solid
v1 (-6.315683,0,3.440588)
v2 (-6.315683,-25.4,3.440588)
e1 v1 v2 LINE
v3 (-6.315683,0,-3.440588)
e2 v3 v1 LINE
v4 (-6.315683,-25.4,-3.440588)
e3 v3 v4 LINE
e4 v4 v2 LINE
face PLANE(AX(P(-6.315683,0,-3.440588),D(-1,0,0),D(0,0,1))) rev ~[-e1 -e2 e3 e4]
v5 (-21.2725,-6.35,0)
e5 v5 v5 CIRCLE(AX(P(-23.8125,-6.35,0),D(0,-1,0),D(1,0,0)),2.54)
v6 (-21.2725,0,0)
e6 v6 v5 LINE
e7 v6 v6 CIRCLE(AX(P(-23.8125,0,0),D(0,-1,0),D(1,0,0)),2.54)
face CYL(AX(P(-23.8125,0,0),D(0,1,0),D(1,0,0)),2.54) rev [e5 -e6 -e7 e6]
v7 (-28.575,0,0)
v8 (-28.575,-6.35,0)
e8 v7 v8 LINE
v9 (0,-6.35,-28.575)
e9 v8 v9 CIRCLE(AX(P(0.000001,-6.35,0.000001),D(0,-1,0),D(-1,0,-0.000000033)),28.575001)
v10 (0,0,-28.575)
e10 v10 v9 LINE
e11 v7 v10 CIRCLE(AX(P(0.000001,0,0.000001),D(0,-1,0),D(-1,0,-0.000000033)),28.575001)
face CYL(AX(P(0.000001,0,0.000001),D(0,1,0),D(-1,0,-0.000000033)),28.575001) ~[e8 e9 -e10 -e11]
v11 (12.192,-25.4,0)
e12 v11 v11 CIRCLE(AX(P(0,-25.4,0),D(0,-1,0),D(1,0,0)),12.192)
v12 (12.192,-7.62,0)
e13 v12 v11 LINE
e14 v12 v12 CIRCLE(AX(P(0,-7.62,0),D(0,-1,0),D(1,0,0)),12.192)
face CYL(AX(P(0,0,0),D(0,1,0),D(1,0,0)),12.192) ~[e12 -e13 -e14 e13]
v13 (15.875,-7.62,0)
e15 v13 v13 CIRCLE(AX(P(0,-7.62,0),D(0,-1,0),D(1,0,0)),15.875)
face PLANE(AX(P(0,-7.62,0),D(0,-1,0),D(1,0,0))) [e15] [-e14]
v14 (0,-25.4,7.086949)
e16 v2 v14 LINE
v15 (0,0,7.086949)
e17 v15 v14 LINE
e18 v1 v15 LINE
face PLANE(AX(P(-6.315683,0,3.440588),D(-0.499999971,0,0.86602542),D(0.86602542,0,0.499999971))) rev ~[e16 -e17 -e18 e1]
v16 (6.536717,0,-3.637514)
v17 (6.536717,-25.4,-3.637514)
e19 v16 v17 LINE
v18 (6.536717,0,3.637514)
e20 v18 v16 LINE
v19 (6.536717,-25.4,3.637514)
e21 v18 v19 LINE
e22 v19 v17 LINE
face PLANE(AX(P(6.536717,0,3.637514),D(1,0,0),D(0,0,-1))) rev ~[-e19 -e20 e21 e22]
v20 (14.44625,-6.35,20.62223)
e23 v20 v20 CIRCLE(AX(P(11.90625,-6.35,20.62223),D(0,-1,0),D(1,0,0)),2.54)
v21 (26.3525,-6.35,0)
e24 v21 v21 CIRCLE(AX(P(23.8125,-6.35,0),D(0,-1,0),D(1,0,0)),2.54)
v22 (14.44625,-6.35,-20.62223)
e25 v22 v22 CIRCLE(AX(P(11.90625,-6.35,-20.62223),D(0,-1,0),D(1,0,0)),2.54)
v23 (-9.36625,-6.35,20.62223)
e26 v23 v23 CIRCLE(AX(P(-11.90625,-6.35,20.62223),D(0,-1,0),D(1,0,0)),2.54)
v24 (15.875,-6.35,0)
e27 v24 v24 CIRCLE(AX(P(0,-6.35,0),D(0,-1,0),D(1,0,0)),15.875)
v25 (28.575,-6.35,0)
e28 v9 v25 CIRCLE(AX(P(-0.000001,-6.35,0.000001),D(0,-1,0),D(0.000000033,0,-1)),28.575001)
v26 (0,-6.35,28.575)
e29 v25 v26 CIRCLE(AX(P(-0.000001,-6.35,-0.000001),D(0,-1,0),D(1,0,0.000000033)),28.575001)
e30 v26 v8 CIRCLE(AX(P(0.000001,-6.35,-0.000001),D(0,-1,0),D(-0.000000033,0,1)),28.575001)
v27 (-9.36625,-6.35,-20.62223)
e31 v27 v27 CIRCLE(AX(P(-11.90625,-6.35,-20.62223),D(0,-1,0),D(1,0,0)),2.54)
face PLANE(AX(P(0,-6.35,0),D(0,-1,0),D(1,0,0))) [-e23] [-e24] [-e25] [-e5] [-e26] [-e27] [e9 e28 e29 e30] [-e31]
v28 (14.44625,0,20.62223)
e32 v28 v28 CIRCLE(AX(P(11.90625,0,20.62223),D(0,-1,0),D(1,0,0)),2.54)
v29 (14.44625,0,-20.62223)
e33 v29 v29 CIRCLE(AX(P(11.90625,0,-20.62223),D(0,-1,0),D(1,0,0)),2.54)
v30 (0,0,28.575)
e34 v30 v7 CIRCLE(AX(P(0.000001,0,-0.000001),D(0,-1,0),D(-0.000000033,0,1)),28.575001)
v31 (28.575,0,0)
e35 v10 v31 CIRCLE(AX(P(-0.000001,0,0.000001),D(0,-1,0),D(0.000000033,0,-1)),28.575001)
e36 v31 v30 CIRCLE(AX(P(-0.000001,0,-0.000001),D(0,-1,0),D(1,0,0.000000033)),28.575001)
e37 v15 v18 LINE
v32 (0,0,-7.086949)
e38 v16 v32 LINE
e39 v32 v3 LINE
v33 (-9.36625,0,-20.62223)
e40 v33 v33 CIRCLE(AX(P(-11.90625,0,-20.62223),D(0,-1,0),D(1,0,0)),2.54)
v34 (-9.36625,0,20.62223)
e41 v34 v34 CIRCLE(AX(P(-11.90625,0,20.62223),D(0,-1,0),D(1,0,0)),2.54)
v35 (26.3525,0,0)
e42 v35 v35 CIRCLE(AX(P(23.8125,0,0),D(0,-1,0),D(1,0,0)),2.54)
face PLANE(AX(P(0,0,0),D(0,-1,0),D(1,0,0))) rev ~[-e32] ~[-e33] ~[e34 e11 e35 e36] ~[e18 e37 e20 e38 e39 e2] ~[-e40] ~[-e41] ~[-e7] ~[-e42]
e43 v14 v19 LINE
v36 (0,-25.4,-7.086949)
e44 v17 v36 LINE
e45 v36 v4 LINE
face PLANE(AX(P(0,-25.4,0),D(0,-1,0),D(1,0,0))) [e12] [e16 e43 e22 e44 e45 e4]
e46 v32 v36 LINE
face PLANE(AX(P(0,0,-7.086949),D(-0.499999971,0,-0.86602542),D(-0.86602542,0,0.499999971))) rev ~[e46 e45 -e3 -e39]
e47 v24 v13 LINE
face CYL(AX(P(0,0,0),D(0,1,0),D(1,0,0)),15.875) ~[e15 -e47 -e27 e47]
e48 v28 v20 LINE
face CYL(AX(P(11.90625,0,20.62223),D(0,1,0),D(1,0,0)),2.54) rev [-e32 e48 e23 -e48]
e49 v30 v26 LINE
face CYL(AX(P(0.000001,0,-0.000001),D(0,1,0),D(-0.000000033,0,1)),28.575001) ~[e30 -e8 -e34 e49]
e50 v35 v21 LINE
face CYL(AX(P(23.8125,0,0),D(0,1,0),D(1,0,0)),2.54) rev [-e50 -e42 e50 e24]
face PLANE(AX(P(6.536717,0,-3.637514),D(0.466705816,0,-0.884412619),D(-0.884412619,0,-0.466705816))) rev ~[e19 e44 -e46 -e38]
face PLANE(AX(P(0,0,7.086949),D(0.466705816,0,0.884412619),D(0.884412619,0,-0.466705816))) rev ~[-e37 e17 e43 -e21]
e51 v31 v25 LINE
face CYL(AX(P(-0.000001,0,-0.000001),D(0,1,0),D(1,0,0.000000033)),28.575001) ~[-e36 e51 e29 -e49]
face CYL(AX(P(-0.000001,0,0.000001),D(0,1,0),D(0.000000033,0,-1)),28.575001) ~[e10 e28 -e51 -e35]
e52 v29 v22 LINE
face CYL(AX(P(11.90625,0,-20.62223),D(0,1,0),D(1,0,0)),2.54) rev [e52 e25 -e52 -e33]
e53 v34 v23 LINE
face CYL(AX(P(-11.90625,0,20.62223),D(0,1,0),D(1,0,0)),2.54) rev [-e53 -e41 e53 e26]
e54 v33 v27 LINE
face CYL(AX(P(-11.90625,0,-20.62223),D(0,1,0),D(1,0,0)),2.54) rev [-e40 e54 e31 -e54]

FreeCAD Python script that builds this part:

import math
import FreeCAD as App
import Part
import Sketcher

V = App.Vector
Q = App.Units.Quantity

doc = App.newDocument("Part")
body = doc.addObject("PartDesign::Body", "Body")

# Sketch on XZ plane
sketch1 = body.newObject("Sketcher::SketchObject", "Sketch")
sketch1.AttachmentSupport = (doc.getObject("XZ_Plane"), [""])
sketch1.MapMode = "FlatFace"
sketch1.addGeometry([
    Part.ArcOfCircle(Part.Circle(V(-0.000001, -0.000001, 0), V(0, 0, 1), 28.575001), math.radians(0.000002), math.radians(89.999998)),  # 0
    Part.ArcOfCircle(Part.Circle(V(0.000001, -0.000001, 0), V(0, 0, 1), 28.575001), math.radians(90.000002), math.radians(179.999998)),  # 1
    Part.ArcOfCircle(Part.Circle(V(0.000001, 0.000001, 0), V(0, 0, 1), 28.575001), math.radians(-179.999998), math.radians(-90.000002)),  # 2
    Part.ArcOfCircle(Part.Circle(V(-0.000001, 0.000001, 0), V(0, 0, 1), 28.575001), math.radians(-89.999998), math.radians(-0.000002)),  # 3
    Part.Circle(V(-11.90625, -20.62223, 0), V(0, 0, 1), 2.54),  # 4
    Part.Circle(V(-23.8125, 0, 0), V(0, 0, 1), 2.54),  # 5
    Part.Circle(V(11.90625, -20.62223, 0), V(0, 0, 1), 2.54),  # 6
    Part.Circle(V(0, 0, 0), V(0, 0, 1), 15.875),  # 7
    Part.Circle(V(23.8125, 0, 0), V(0, 0, 1), 2.54),  # 8
    Part.Circle(V(-11.90625, 20.62223, 0), V(0, 0, 1), 2.54),  # 9
    Part.Circle(V(11.90625, 20.62223, 0), V(0, 0, 1), 2.54),  # 10
], False)
sketch1.addConstraint([
    Sketcher.Constraint("Tangent", 0, 2, 1, 1),
    Sketcher.Constraint("Tangent", 1, 2, 2, 1),
    Sketcher.Constraint("Tangent", 2, 2, 3, 1),
    Sketcher.Constraint("Tangent", 3, 2, 0, 1),
    Sketcher.Constraint("Coincident", 0, 3, -1, 1),
    Sketcher.Constraint("Coincident", 7, 3, -1, 1),
    Sketcher.Constraint("Equal", 0, 1),
    Sketcher.Constraint("Equal", 4, 5),
    Sketcher.Constraint("Equal", 5, 6),
    Sketcher.Constraint("Equal", 6, 8),
    Sketcher.Constraint("Equal", 8, 9),
    Sketcher.Constraint("Equal", 9, 10),
    Sketcher.Constraint("Symmetric", 5, 3, 8, 3, -1, 1),
    Sketcher.Constraint("Symmetric", 6, 3, 9, 3, -1, 1),
    Sketcher.Constraint("Symmetric", 4, 3, 10, 3, -1, 1),
    Sketcher.Constraint("Symmetric", 4, 3, 6, 3, -2),
    Sketcher.Constraint("PointOnObject", 5, 3, -1),
    Sketcher.Constraint("PointOnObject", 0, 2, -2),
    Sketcher.Constraint("PointOnObject", 1, 2, -1),
    Sketcher.Constraint("PointOnObject", 2, 2, -2),
    Sketcher.Constraint("PointOnObject", 3, 2, -1),
    Sketcher.Constraint("Diameter", 4, Q("0.2 in")),
    Sketcher.Constraint("Diameter", 7, Q("1.25 in")),
    Sketcher.Constraint("Radius", 0, Q("1.125 in")),
    Sketcher.Constraint("DistanceX", 4, 3, -1, 1, Q("0.46875 in")),
    Sketcher.Constraint("DistanceX", 5, 3, -1, 1, Q("0.9375 in")),
    Sketcher.Constraint("DistanceY", 4, 3, -1, 1, Q("20.62223 mm")),
])
pad1 = body.newObject("PartDesign::Pad", "Pad")
pad1.Profile = sketch1
pad1.Length = Q("0.25 in")

# Sketch on XZ plane
sketch2 = body.newObject("Sketcher::SketchObject", "Sketch001")
sketch2.AttachmentSupport = (doc.getObject("XZ_Plane"), [""])
sketch2.MapMode = "FlatFace"
sketch2.addGeometry([
    Part.Circle(V(0, 0, 0), V(0, 0, 1), 15.875),
    Part.Circle(V(0, 0, 0), V(0, 0, 1), 12.192),
], False)
sketch2.addConstraint([
    Sketcher.Constraint("Coincident", 0, 3, -1, 1),
    Sketcher.Constraint("Coincident", 1, 3, -1, 1),
    Sketcher.Constraint("Diameter", 0, Q("1.25 in")),
    Sketcher.Constraint("Diameter", 1, Q("0.96 in")),
])
pad2 = body.newObject("PartDesign::Pad", "Pad001")
pad2.Profile = sketch2
pad2.Length = Q("0.3 in")

# Sketch on XZ plane
sketch3 = body.newObject("Sketcher::SketchObject", "Sketch002")
sketch3.AttachmentSupport = (doc.getObject("XZ_Plane"), [""])
sketch3.MapMode = "FlatFace"
sketch3.addGeometry([
    Part.Circle(V(0, 0, 0), V(0, 0, 1), 12.192),  # 0
    Part.LineSegment(V(-6.315683, 3.440588, 0), V(0, 7.086949, 0)),  # 1
    Part.LineSegment(V(0, 7.086949, 0), V(6.536717, 3.637514, 0)),  # 2
    Part.LineSegment(V(6.536717, 3.637514, 0), V(6.536717, -3.637514, 0)),  # 3
    Part.LineSegment(V(6.536717, -3.637514, 0), V(0, -7.086949, 0)),  # 4
    Part.LineSegment(V(0, -7.086949, 0), V(-6.315683, -3.440588, 0)),  # 5
    Part.LineSegment(V(-6.315683, -3.440588, 0), V(-6.315683, 3.440588, 0)),  # 6
], False)
sketch3.addConstraint([
    Sketcher.Constraint("Coincident", 1, 2, 2, 1),
    Sketcher.Constraint("Coincident", 2, 2, 3, 1),
    Sketcher.Constraint("Coincident", 3, 2, 4, 1),
    Sketcher.Constraint("Coincident", 4, 2, 5, 1),
    Sketcher.Constraint("Coincident", 5, 2, 6, 1),
    Sketcher.Constraint("Coincident", 6, 2, 1, 1),
    Sketcher.Constraint("Vertical", 3),
    Sketcher.Constraint("Vertical", 6),
    Sketcher.Constraint("Coincident", 0, 3, -1, 1),
    Sketcher.Constraint("Symmetric", 1, 2, 4, 2, -1, 1),
    Sketcher.Constraint("PointOnObject", 1, 2, -2),
    Sketcher.Constraint("Equal", 2, 4),
    Sketcher.Constraint("Equal", 1, 5),
    Sketcher.Constraint("Diameter", 0, Q("0.96 in")),
    Sketcher.Constraint("Angle", 1, Q("29.999998 deg")),
    Sketcher.Constraint("DistanceX", 5, 2, 3, 2, Q("0.506 in")),
    Sketcher.Constraint("DistanceY", 5, 2, 2, 2, Q("7.078102 mm")),
    Sketcher.Constraint("DistanceY", 3, 2, 3, 1, Q("7.275028 mm")),
    Sketcher.Constraint("DistanceY", -1, 1, 1, 2, Q("7.086949 mm")),
])
pad3 = body.newObject("PartDesign::Pad", "Pad002")
pad3.Profile = sketch3
pad3.Length = Q("1 in")

doc.recompute()
